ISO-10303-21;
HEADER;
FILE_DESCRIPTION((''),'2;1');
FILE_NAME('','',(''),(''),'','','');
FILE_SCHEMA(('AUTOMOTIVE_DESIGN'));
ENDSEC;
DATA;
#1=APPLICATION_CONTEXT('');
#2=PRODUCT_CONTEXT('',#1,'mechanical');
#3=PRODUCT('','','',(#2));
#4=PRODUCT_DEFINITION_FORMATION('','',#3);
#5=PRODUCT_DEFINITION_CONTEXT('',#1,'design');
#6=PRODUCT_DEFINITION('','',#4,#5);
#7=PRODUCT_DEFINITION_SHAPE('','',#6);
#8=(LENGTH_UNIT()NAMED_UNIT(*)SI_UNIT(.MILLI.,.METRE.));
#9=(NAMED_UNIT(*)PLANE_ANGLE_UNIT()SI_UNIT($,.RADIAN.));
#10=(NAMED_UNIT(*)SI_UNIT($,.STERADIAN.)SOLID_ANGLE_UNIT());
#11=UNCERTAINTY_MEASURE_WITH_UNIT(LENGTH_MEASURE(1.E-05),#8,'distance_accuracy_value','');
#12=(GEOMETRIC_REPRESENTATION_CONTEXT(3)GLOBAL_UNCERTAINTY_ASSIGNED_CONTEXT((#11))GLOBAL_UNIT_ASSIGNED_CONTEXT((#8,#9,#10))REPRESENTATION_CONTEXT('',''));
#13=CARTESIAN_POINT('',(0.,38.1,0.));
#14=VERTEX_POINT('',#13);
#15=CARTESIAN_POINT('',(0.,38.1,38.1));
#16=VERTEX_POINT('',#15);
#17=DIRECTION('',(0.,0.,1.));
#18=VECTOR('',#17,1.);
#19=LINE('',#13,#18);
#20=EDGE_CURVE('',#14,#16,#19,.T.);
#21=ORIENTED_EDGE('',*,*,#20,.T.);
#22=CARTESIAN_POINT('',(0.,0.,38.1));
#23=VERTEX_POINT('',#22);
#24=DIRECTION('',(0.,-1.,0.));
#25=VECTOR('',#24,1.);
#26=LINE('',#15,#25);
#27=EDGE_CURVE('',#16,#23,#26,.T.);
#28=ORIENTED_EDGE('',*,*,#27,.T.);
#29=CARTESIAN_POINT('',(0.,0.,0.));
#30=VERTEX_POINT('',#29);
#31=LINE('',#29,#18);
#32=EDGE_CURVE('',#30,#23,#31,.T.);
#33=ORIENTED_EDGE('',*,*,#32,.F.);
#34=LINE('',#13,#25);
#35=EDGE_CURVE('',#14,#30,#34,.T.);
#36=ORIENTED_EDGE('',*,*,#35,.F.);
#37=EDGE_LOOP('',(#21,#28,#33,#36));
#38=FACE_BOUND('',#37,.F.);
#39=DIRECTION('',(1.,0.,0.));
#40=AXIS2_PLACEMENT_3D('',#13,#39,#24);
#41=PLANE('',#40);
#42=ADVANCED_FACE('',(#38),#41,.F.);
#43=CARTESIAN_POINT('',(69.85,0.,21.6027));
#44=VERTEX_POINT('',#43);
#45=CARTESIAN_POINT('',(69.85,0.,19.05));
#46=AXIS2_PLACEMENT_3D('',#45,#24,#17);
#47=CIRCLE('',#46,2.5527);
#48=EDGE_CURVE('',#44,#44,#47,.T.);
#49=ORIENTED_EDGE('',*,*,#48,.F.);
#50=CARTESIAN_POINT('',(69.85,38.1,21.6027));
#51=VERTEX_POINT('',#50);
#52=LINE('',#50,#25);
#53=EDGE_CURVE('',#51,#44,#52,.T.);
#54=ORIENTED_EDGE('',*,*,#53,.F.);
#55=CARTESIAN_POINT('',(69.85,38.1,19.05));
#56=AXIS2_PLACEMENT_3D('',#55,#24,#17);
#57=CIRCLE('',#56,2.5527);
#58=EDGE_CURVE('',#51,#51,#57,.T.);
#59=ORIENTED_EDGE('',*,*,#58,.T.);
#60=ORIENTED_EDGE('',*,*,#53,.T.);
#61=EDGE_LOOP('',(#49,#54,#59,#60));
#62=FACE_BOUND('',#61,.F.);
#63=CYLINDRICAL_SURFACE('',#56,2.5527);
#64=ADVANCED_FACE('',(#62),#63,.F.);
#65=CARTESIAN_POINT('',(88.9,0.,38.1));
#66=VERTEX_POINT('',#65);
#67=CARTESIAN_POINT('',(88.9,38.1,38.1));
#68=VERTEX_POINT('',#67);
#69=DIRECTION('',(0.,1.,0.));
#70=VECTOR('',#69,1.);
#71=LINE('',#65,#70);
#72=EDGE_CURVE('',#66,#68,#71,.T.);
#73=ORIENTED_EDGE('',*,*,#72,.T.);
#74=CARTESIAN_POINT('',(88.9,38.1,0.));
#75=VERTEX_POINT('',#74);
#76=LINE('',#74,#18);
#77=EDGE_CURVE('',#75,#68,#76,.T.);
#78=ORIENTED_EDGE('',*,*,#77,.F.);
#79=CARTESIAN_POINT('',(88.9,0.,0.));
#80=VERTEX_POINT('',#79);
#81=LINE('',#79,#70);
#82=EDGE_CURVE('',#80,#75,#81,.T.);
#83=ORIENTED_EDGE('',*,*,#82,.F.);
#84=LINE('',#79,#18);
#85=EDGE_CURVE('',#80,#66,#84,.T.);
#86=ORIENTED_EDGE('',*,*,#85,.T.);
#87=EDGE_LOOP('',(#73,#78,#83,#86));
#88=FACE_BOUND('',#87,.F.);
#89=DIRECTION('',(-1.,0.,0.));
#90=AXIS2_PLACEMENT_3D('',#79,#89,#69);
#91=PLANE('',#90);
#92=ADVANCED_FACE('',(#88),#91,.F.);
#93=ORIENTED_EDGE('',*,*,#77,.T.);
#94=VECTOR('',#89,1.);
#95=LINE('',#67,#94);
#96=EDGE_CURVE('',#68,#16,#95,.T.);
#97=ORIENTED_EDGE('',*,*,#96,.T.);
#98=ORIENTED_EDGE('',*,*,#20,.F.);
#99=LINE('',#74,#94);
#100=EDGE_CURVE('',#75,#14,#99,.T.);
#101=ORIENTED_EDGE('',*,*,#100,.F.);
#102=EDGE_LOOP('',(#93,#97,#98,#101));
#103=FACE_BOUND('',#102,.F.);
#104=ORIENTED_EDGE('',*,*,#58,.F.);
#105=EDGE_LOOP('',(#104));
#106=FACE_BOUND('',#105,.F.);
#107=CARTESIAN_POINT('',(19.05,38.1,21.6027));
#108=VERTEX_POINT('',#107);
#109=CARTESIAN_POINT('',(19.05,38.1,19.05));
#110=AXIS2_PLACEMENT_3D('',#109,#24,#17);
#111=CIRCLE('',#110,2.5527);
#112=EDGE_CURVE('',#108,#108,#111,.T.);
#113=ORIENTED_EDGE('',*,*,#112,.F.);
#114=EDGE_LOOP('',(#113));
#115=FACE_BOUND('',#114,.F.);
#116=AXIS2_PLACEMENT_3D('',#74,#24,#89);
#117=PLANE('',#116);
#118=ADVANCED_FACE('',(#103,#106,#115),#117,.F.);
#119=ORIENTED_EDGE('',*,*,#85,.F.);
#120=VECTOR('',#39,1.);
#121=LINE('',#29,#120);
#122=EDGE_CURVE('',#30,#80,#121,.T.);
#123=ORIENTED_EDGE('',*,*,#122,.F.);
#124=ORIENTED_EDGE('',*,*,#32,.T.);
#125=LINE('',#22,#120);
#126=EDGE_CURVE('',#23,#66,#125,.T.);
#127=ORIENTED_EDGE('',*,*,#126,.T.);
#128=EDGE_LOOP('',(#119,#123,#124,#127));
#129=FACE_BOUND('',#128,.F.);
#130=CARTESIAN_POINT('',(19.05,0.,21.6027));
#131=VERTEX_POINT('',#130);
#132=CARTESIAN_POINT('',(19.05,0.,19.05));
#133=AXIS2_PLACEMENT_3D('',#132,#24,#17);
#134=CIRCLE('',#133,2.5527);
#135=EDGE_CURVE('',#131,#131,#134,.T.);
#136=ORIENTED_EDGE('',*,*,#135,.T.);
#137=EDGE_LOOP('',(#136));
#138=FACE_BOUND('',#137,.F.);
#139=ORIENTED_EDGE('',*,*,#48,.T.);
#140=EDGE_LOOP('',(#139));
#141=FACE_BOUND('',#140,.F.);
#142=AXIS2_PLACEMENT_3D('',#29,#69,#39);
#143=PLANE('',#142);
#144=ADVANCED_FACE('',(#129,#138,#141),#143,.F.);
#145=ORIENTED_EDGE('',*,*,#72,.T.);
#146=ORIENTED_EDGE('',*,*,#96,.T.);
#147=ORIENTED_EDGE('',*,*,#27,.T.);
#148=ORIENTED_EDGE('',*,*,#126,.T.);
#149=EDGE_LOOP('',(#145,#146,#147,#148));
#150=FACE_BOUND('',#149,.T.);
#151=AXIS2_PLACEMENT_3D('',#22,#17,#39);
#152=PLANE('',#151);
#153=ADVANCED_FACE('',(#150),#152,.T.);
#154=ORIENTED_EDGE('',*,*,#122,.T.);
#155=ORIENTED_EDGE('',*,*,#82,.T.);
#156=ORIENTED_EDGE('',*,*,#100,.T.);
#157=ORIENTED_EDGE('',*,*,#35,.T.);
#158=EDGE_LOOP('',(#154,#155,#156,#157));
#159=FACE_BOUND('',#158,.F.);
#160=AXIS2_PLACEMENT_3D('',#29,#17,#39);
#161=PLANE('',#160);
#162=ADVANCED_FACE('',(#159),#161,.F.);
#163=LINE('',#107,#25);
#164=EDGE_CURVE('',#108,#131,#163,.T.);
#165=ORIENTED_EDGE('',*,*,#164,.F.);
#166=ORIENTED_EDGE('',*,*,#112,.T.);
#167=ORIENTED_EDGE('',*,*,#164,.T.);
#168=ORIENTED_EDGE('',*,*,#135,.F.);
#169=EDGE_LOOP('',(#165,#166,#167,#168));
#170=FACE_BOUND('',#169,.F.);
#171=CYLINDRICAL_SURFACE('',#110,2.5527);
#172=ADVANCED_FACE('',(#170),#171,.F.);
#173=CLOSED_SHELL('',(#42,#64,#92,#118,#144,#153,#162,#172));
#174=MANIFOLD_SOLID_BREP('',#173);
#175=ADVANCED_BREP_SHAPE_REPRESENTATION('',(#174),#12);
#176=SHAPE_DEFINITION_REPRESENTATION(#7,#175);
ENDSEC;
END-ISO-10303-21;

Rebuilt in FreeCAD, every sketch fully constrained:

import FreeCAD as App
import Part
import Sketcher

V = App.Vector
Q = App.Units.Quantity


def add_polygon(sketch, points):
    """Adds a closed chain of lines whose ends are joined by coincident constraints."""
    first, n = sketch.GeometryCount, len(points)
    for a, b in zip(points, points[1:] + points[:1]):
        sketch.addGeometry(Part.LineSegment(App.Vector(*a, 0), App.Vector(*b, 0)), False)
    for i in range(n):
        sketch.addConstraint(Sketcher.Constraint("Coincident", first + i, 2, first + (i + 1) % n, 1))

doc = App.newDocument("Part")
body = doc.addObject("PartDesign::Body", "Body")

sketch1 = doc.addObject("Sketcher::SketchObject", "Sketch")
body.addObject(sketch1)
sketch1.AttachmentSupport = (doc.XY_Plane, [""])
sketch1.MapMode = "FlatFace"
add_polygon(sketch1, [(0, 38), (0, 0), (89, 0), (89, 38)])
sketch1.addConstraint([
    Sketcher.Constraint("Vertical", 0),
    Sketcher.Constraint("Horizontal", 1),
    Sketcher.Constraint("Vertical", 2),
    Sketcher.Constraint("Horizontal", 3),
    Sketcher.Constraint("Coincident", 0, 2, -1, 1),
    Sketcher.Constraint("DistanceX", 1, 1, 1, 2, Q("3.5 in")),
    Sketcher.Constraint("DistanceY", 0, 2, 0, 1, Q("1.5 in")),
])
pad1 = doc.addObject("PartDesign::Pad", "Pad")
body.addObject(pad1)
pad1.Profile = sketch1
pad1.Length = Q("1.5 in")

sketch2 = doc.addObject("Sketcher::SketchObject", "Sketch001")
body.addObject(sketch2)
sketch2.AttachmentSupport = (doc.XZ_Plane, [""])
sketch2.MapMode = "FlatFace"
sketch2.AttachmentOffset = App.Placement(V(0, 0, -1.5 * 25.4), App.Rotation())
sketch2.addGeometry([
    Part.Circle(V(19.1, 19.1, 0), V(0, 0, 1), 2.6),
    Part.Circle(V(69.8, 19.1, 0), V(0, 0, 1), 2.6),
], False)
sketch2.addConstraint([
    Sketcher.Constraint("Equal", 0, 1),
    Sketcher.Constraint("Horizontal", 0, 3, 1, 3),
    Sketcher.Constraint("Diameter", 0, Q("0.201 in")),
    Sketcher.Constraint("DistanceX", 0, 3, 1, 3, Q("2 in")),
    Sketcher.Constraint("DistanceX", -1, 1, 0, 3, Q("0.75 in")),
    Sketcher.Constraint("DistanceY", -1, 1, 0, 3, Q("0.75 in")),
])
doc.recompute()
hole = doc.addObject("PartDesign::Hole", "Hole")
body.addObject(hole)
hole.Profile = sketch2
hole.ThreadType = "None"
hole.Diameter = Q("0.201 in")
hole.DepthType = "ThroughAll"
hole.Reversed = True

doc.recompute()
